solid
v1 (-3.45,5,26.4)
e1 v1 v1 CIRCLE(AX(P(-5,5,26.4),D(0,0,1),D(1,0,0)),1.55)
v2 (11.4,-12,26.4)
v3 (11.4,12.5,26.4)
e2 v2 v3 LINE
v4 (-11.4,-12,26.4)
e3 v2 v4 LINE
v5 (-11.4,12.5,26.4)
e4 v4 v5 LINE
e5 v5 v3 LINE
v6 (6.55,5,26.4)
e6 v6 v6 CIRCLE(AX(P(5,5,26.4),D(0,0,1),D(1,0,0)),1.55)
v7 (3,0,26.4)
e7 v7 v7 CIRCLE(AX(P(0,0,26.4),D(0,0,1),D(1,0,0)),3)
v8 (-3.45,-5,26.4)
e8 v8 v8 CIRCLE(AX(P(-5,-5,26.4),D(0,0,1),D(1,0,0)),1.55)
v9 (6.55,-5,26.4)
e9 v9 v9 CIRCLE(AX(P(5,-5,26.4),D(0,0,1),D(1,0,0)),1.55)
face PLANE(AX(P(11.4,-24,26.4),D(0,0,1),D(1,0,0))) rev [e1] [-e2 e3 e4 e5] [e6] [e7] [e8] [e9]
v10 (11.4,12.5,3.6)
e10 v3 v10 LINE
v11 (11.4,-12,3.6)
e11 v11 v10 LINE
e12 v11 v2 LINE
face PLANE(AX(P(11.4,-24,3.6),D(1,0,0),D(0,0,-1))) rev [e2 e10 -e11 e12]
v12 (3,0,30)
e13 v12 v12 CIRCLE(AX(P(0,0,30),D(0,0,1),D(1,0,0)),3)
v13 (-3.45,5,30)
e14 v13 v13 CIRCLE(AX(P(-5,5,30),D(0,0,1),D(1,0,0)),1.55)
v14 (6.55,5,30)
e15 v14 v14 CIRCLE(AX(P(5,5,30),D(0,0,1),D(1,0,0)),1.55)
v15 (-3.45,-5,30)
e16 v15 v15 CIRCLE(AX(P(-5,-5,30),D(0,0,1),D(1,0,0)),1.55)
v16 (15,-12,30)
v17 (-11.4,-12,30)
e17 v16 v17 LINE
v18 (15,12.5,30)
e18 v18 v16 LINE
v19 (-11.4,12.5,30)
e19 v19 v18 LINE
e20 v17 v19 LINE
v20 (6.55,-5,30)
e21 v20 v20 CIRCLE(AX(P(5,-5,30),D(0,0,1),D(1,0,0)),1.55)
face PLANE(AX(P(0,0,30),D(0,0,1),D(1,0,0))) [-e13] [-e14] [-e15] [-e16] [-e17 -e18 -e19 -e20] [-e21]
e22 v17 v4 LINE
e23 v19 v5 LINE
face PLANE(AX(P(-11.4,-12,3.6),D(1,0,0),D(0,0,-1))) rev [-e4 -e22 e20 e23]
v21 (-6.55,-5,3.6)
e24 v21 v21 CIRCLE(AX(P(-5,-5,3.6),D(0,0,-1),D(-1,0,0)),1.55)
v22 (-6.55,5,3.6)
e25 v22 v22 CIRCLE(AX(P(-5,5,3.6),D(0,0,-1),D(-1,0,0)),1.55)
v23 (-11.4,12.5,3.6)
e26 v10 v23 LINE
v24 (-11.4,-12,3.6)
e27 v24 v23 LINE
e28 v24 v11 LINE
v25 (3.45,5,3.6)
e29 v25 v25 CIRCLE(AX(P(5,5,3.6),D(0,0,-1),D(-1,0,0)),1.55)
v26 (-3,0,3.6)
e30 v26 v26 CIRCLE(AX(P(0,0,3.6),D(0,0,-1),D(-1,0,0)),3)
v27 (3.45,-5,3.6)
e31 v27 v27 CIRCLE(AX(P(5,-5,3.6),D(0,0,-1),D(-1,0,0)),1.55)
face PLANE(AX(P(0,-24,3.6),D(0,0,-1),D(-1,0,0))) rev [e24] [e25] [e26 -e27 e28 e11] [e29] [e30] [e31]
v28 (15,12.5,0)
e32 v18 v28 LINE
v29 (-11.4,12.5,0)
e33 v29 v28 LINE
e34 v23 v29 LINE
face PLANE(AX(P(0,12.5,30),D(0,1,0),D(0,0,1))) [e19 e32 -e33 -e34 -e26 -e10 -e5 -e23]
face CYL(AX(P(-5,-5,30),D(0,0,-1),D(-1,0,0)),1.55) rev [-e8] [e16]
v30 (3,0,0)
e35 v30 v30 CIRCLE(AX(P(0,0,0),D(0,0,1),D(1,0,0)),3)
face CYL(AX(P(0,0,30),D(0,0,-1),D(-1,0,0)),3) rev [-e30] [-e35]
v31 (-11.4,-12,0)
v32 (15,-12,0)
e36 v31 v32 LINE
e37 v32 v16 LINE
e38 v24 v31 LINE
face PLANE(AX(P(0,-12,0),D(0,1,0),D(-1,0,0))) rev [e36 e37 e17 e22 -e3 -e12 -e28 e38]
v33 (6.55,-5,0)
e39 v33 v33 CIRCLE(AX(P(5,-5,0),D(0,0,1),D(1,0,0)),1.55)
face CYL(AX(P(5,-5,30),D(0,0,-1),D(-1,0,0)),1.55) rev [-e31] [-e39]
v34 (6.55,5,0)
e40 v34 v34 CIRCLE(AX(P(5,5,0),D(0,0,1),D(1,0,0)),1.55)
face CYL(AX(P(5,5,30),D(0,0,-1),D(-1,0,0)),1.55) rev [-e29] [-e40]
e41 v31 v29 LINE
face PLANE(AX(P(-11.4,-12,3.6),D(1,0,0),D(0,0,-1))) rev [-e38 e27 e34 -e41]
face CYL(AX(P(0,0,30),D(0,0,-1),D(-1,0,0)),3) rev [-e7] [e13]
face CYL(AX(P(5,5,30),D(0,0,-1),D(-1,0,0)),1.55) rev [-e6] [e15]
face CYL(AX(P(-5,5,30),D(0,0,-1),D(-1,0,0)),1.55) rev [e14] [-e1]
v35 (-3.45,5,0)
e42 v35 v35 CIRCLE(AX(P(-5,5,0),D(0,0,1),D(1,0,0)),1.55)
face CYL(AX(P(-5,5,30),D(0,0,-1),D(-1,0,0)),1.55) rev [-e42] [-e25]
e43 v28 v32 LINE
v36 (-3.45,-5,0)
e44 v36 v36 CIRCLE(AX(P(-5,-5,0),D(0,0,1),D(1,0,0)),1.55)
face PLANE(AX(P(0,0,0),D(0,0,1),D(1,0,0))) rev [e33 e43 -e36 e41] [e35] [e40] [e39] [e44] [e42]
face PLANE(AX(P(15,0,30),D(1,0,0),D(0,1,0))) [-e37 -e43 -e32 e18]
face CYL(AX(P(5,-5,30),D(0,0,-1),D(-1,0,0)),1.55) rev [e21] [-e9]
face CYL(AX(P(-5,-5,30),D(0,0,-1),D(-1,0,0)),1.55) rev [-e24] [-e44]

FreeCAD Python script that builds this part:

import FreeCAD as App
import Part
import Sketcher
from FreeCAD import Vector
Q = App.Units.Quantity


def edges_at(feature, points):
    """Names of the edges that pass closest to the given points."""
    edges = feature.Shape.Edges
    near = lambda p: min(range(len(edges)), key=lambda i: edges[i].distToShape(Part.Vertex(*p))[0])
    return sorted({f"Edge{near(p) + 1}" for p in points})

doc = App.newDocument("Part")
body = doc.addObject("PartDesign::Body", "Body")

sketch1 = body.newObject("Sketcher::SketchObject", "Sketch")
sketch1.AttachmentSupport = (doc.getObject("XY_Plane"), [""])
sketch1.MapMode = "FlatFace"
sketch1.addGeometry([
    Part.LineSegment(Vector(15, 12.5, 0), Vector(-15, 12.5, 0)),
    Part.LineSegment(Vector(-15, 12.5, 0), Vector(-15, -24, 0)),
    Part.LineSegment(Vector(-15, -24, 0), Vector(15, -24, 0)),
    Part.LineSegment(Vector(15, -24, 0), Vector(15, 12.5, 0)),
    Part.Circle(Vector(-5, -5, 0), Vector(0, 0, 1), 1.6),
    Part.Circle(Vector(5, -5, 0), Vector(0, 0, 1), 1.6),
    Part.Circle(Vector(0, 0, 0), Vector(0, 0, 1), 3),
    Part.Circle(Vector(-5, 5, 0), Vector(0, 0, 1), 1.6),
    Part.Circle(Vector(5, 5, 0), Vector(0, 0, 1), 1.6),
], False)
sketch1.addConstraint([
    Sketcher.Constraint("Coincident", 0, 2, 1, 1),
    Sketcher.Constraint("Coincident", 1, 2, 2, 1),
    Sketcher.Constraint("Coincident", 2, 2, 3, 1),
    Sketcher.Constraint("Coincident", 3, 2, 0, 1),
    Sketcher.Constraint("Horizontal", 0),
    Sketcher.Constraint("Vertical", 1),
    Sketcher.Constraint("Horizontal", 2),
    Sketcher.Constraint("Vertical", 3),
    Sketcher.Constraint("Coincident", 6, 3, -1, 1),
    Sketcher.Constraint("Equal", 4, 5),
    Sketcher.Constraint("Equal", 5, 7),
    Sketcher.Constraint("Equal", 7, 8),
    Sketcher.Constraint("Symmetric", 5, 3, 7, 3, -1, 1),
    Sketcher.Constraint("Symmetric", 4, 3, 8, 3, -1, 1),
    Sketcher.Constraint("Symmetric", 4, 3, 5, 3, -2),
    Sketcher.Constraint("Diameter", 6, Q("6 mm")),
    Sketcher.Constraint("Diameter", 4, Q("3.1 mm")),
    Sketcher.Constraint("DistanceX", 0, 2, 0, 1, Q("30 mm")),
    Sketcher.Constraint("DistanceY", 1, 2, 1, 1, Q("36.5 mm")),
    Sketcher.Constraint("DistanceX", 4, 3, -1, 1, Q("5 mm")),
    Sketcher.Constraint("DistanceY", 4, 3, -1, 1, Q("5 mm")),
    Sketcher.Constraint("DistanceX", 0, 2, -1, 1, Q("15 mm")),
    Sketcher.Constraint("DistanceY", 1, 2, -1, 1, Q("24 mm")),
])
pad1 = body.newObject("PartDesign::Pad", "Pad")
pad1.Profile = sketch1
pad1.Length = 30

sketch2 = body.newObject("Sketcher::SketchObject", "Sketch001")
sketch2.AttachmentSupport = (doc.getObject("XZ_Plane"), [""])
sketch2.MapMode = "FlatFace"
sketch2.AttachmentOffset = App.Placement(Vector(0, 0, -12.5), App.Rotation())
sketch2.addGeometry([
    Part.LineSegment(Vector(-11, 4, 0), Vector(-11, 26, 0)),
    Part.LineSegment(Vector(-11, 26, 0), Vector(11, 26, 0)),
    Part.LineSegment(Vector(11, 26, 0), Vector(11, 4, 0)),
    Part.LineSegment(Vector(11, 4, 0), Vector(-11, 4, 0)),
], False)
sketch2.addConstraint([
    Sketcher.Constraint("Coincident", 0, 2, 1, 1),
    Sketcher.Constraint("Coincident", 1, 2, 2, 1),
    Sketcher.Constraint("Coincident", 2, 2, 3, 1),
    Sketcher.Constraint("Coincident", 3, 2, 0, 1),
    Sketcher.Constraint("Vertical", 0),
    Sketcher.Constraint("Horizontal", 1),
    Sketcher.Constraint("Vertical", 2),
    Sketcher.Constraint("Horizontal", 3),
    Sketcher.Constraint("Equal", 3, 0),
    Sketcher.Constraint("DistanceX", 1, 1, 1, 2, Q("22.8 mm")),
    Sketcher.Constraint("DistanceX", 0, 2, -1, 1, Q("11.4 mm")),
    Sketcher.Constraint("DistanceY", -1, 1, 0, 2, Q("26.4 mm")),
])
pocket1 = body.newObject("PartDesign::Pocket", "Pocket")
pocket1.Profile = sketch2
pocket1.Type = "ThroughAll"
pocket1.Reversed = True

sketch3 = body.newObject("Sketcher::SketchObject", "Sketch002")
sketch3.AttachmentSupport = (doc.getObject("XZ_Plane"), [""])
sketch3.MapMode = "FlatFace"
sketch3.AttachmentOffset = App.Placement(Vector(0, 0, 24), App.Rotation())
sketch3.addGeometry([
    Part.LineSegment(Vector(-15, 30, 0), Vector(-15, 0, 0)),
    Part.LineSegment(Vector(-15, 0, 0), Vector(15, 0, 0)),
    Part.LineSegment(Vector(15, 0, 0), Vector(15, 30, 0)),
    Part.LineSegment(Vector(15, 30, 0), Vector(-15, 30, 0)),
], False)
sketch3.addConstraint([
    Sketcher.Constraint("Coincident", 0, 2, 1, 1),
    Sketcher.Constraint("Coincident", 1, 2, 2, 1),
    Sketcher.Constraint("Coincident", 2, 2, 3, 1),
    Sketcher.Constraint("Coincident", 3, 2, 0, 1),
    Sketcher.Constraint("Vertical", 0),
    Sketcher.Constraint("Horizontal", 1),
    Sketcher.Constraint("Vertical", 2),
    Sketcher.Constraint("Horizontal", 3),
    Sketcher.Constraint("Symmetric", 0, 2, 1, 2, -1, 1),
    Sketcher.Constraint("Equal", 3, 0),
    Sketcher.Constraint("DistanceX", 1, 1, 1, 2, Q("30 mm")),
])
pocket2 = body.newObject("PartDesign::Pocket", "Pocket001")
pocket2.Profile = sketch3
pocket2.Length = 12

sketch4 = body.newObject("Sketcher::SketchObject", "Sketch003")
sketch4.AttachmentSupport = (doc.getObject("YZ_Plane"), [""])
sketch4.MapMode = "FlatFace"
sketch4.AttachmentOffset = App.Placement(Vector(0, 0, -15), App.Rotation())
sketch4.addGeometry([
    Part.LineSegment(Vector(-12, 30, 0), Vector(12, 30, 0)),
    Part.LineSegment(Vector(12, 30, 0), Vector(12, 0, 0)),
    Part.LineSegment(Vector(12, 0, 0), Vector(-12, 0, 0)),
    Part.LineSegment(Vector(-12, 0, 0), Vector(-12, 30, 0)),
], False)
sketch4.addConstraint([
    Sketcher.Constraint("Coincident", 0, 2, 1, 1),
    Sketcher.Constraint("Coincident", 1, 2, 2, 1),
    Sketcher.Constraint("Coincident", 2, 2, 3, 1),
    Sketcher.Constraint("Coincident", 3, 2, 0, 1),
    Sketcher.Constraint("Horizontal", 0),
    Sketcher.Constraint("Vertical", 1),
    Sketcher.Constraint("Horizontal", 2),
    Sketcher.Constraint("Vertical", 3),
    Sketcher.Constraint("PointOnObject", 1, 2, -1),
    Sketcher.Constraint("DistanceY", 1, 2, 1, 1, Q("30 mm")),
    Sketcher.Constraint("DistanceX", 0, 1, 0, 2, Q("24.5 mm")),
    Sketcher.Constraint("DistanceX", 2, 2, -1, 1, Q("12 mm")),
])
pad2 = body.newObject("PartDesign::Pad", "Pad001")
pad2.Profile = sketch4
pad2.Length = 55
pad2.Reversed = True

sketch5 = body.newObject("Sketcher::SketchObject", "Sketch004")
sketch5.AttachmentSupport = (doc.getObject("XZ_Plane"), [""])
sketch5.MapMode = "FlatFace"
sketch5.AttachmentOffset = App.Placement(Vector(0, 0, -12.5), App.Rotation())
sketch5.addGeometry([
    Part.LineSegment(Vector(-70, 15, 0), Vector(-11.4, 0, 0)),
    Part.LineSegment(Vector(-11.4, 0, 0), Vector(-70, 0, 0)),
    Part.LineSegment(Vector(-70, 0, 0), Vector(-70, 15, 0)),
    Part.LineSegment(Vector(-11.4, 30, 0), Vector(-70, 15, 0)),
    Part.LineSegment(Vector(-70, 15, 0), Vector(-70, 30, 0)),
    Part.LineSegment(Vector(-70, 30, 0), Vector(-11.4, 30, 0)),
    Part.Circle(Vector(-56.4, 15, 0), Vector(0, 0, 1), 2.3),
    Part.Circle(Vector(-33.9, 15, 0), Vector(0, 0, 1), 5),
    Part.Circle(Vector(-22.1, 15, 0), Vector(0, 0, 1), 6),
    Part.Circle(Vector(-46.1, 15, 0), Vector(0, 0, 1), 4),
], False)
sketch5.addConstraint([
    Sketcher.Constraint("Coincident", 0, 2, 1, 1),
    Sketcher.Constraint("Coincident", 1, 2, 2, 1),
    Sketcher.Constraint("Coincident", 2, 2, 0, 1),
    Sketcher.Constraint("Coincident", 3, 2, 4, 1),
    Sketcher.Constraint("Coincident", 4, 2, 5, 1),
    Sketcher.Constraint("Coincident", 5, 2, 3, 1),
    Sketcher.Constraint("Horizontal", 1),
    Sketcher.Constraint("Vertical", 2),
    Sketcher.Constraint("Vertical", 4),
    Sketcher.Constraint("Horizontal", 5),
    Sketcher.Constraint("Coincident", 3, 2, 2, 2),
    Sketcher.Constraint("PointOnObject", 0, 2, -1),
    Sketcher.Constraint("Horizontal", 6, 3, 7, 3),
    Sketcher.Constraint("Horizontal", 7, 3, 8, 3),
    Sketcher.Constraint("Horizontal", 8, 3, 9, 3),
    Sketcher.Constraint("Horizontal", 9, 3, 2, 2),
    Sketcher.Constraint("Vertical", 0, 2, 5, 2),
    Sketcher.Constraint("Equal", 2, 4),
    Sketcher.Constraint("Diameter", 7, Q("10 mm")),
    Sketcher.Constraint("Diameter", 8, Q("12 mm")),
    Sketcher.Constraint("Diameter", 9, Q("8 mm")),
    Sketcher.Constraint("Diameter", 6, Q("4.6 mm")),
    Sketcher.Constraint("DistanceY", 2, 1, 2, 2, Q("15 mm")),
    Sketcher.Constraint("DistanceX", 1, 2, 1, 1, Q("58.6 mm")),
    Sketcher.Constraint("DistanceX", 1, 2, -1, 1, Q("70 mm")),
    Sketcher.Constraint("DistanceX", 6, 3, 0, 2, Q("45 mm")),
    Sketcher.Constraint("DistanceX", 7, 3, -1, 1, Q("33.9 mm")),
    Sketcher.Constraint("DistanceX", 8, 3, -1, 1, Q("22.12555 mm")),
    Sketcher.Constraint("DistanceX", 9, 3, -1, 1, Q("46.110472 mm")),
])
pocket3 = body.newObject("PartDesign::Pocket", "Pocket002")
pocket3.Profile = sketch5
pocket3.Type = "ThroughAll"
pocket3.Reversed = True
doc.recompute()

fillet = body.newObject("PartDesign::Fillet", "Fillet")
fillet.Base = (pocket3, edges_at(pocket3, [(-70, 0.25, 15)]))
fillet.Radius = 2

sketch6 = body.newObject("Sketcher::SketchObject", "Sketch005")
sketch6.AttachmentSupport = (doc.getObject("XZ_Plane"), [""])
sketch6.MapMode = "FlatFace"
sketch6.AttachmentOffset = App.Placement(Vector(0, 0, -12.5), App.Rotation())
sketch6.addGeometry([
    Part.LineSegment(Vector(-11, 0, 0), Vector(-67, 0, 0)),
    Part.LineSegment(Vector(-67, 0, 0), Vector(-66, 30, 0)),
    Part.LineSegment(Vector(-66, 30, 0), Vector(-11, 30, 0)),
    Part.LineSegment(Vector(-11, 30, 0), Vector(-11, 0, 0)),
], False)
sketch6.addConstraint([
    Sketcher.Constraint("Coincident", 0, 2, 1, 1),
    Sketcher.Constraint("Coincident", 1, 2, 2, 1),
    Sketcher.Constraint("Coincident", 2, 2, 3, 1),
    Sketcher.Constraint("Coincident", 3, 2, 0, 1),
    Sketcher.Constraint("Horizontal", 0),
    Sketcher.Constraint("Horizontal", 2),
    Sketcher.Constraint("Vertical", 3),
    Sketcher.Constraint("PointOnObject", 0, 2, -1),
    Sketcher.Constraint("DistanceX", 2, 1, 2, 2, Q("55 mm")),
    Sketcher.Constraint("DistanceY", 3, 2, 3, 1, Q("30 mm")),
    Sketcher.Constraint("DistanceX", 1, 2, -1, 1, Q("66.4 mm")),
    Sketcher.Constraint("Distance", 1, Q("30.005131 mm")),
])
pocket4 = body.newObject("PartDesign::Pocket", "Pocket003")
pocket4.Profile = sketch6
pocket4.Type = "ThroughAll"
pocket4.Reversed = True

doc.recompute()
